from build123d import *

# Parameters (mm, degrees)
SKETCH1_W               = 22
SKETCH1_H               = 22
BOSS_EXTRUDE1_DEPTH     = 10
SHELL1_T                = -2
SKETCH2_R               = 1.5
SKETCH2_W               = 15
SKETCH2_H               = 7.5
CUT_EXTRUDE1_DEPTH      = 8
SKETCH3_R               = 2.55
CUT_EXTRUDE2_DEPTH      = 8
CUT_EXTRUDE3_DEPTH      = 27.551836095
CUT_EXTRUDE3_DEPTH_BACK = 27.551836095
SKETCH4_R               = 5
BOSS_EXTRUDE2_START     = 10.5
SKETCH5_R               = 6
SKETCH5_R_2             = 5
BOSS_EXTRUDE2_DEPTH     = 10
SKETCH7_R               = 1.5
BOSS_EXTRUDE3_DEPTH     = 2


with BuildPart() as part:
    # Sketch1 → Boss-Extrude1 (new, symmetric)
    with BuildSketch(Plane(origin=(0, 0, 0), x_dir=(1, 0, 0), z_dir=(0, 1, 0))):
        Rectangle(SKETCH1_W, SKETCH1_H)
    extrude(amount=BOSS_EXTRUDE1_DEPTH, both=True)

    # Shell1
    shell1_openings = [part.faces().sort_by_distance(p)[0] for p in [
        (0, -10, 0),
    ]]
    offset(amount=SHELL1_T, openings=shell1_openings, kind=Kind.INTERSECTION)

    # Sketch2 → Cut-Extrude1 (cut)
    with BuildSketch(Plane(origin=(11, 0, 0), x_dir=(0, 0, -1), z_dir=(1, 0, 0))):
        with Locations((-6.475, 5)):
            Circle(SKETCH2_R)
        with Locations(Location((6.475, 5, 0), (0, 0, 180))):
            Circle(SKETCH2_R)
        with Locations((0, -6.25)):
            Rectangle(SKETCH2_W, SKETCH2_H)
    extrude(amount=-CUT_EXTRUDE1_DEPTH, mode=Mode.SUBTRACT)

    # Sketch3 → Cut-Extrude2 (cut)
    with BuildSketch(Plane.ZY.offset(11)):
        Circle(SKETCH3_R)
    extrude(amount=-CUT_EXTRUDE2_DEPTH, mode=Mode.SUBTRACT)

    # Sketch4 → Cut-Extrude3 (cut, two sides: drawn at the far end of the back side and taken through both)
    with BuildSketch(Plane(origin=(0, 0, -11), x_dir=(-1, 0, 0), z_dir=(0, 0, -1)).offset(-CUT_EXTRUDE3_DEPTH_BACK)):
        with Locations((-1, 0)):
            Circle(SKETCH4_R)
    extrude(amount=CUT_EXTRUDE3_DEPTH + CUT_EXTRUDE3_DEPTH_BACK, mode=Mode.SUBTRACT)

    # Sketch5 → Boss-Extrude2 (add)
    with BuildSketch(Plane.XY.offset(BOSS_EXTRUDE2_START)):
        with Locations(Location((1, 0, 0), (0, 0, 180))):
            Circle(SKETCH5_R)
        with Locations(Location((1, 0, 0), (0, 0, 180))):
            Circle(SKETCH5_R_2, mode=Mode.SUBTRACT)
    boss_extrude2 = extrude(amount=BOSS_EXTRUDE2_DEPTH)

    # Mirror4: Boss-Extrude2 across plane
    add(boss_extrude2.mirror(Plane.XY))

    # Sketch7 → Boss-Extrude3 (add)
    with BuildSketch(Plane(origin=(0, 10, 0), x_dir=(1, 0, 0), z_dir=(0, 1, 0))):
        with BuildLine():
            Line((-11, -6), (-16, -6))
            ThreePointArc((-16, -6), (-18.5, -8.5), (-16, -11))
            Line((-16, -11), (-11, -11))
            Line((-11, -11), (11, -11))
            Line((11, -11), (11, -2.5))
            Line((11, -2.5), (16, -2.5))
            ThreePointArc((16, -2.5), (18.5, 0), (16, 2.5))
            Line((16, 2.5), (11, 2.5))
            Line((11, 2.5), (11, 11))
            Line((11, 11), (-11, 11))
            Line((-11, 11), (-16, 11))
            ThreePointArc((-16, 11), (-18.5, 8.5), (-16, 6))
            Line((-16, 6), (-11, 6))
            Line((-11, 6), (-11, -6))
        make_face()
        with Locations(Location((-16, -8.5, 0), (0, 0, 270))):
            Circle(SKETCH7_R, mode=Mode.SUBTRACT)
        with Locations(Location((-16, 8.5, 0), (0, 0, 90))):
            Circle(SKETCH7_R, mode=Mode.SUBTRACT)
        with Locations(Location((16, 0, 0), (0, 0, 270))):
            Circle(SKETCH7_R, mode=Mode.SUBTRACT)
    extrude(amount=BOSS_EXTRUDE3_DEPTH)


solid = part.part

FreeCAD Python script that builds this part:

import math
import FreeCAD as App
import Part
import Sketcher
Q = App.Units.Quantity


def faces_at(feature, points):
    """Names of the faces that lie closest to the given points."""
    faces = feature.Shape.Faces
    near = lambda p: min(range(len(faces)), key=lambda i: faces[i].distToShape(Part.Vertex(*p))[0])
    return sorted({f"Face{near(p) + 1}" for p in points})


def add_polygon(sketch, points):
    """Adds a closed chain of lines whose ends are joined by coincident constraints."""
    first, n = sketch.GeometryCount, len(points)
    for a, b in zip(points, points[1:] + points[:1]):
        sketch.addGeometry(Part.LineSegment(App.Vector(*a, 0), App.Vector(*b, 0)), False)
    for i in range(n):
        sketch.addConstraint(Sketcher.Constraint("Coincident", first + i, 2, first + (i + 1) % n, 1))

doc = App.newDocument("Part")
body = doc.addObject("PartDesign::Body", "Body")

# Sketch on XZ plane
sketch1 = body.newObject("Sketcher::SketchObject", "Sketch")
sketch1.AttachmentSupport = (doc.getObject("XZ_Plane"), [""])
sketch1.MapMode = "FlatFace"
add_polygon(sketch1, [(-11, -11), (-11, 11), (11, 11), (11, -11)])  # lines 0-3
sketch1.addConstraint(Sketcher.Constraint("Vertical", 0))
sketch1.addConstraint(Sketcher.Constraint("Horizontal", 1))
sketch1.addConstraint(Sketcher.Constraint("Vertical", 2))
sketch1.addConstraint(Sketcher.Constraint("Horizontal", 3))
sketch1.addConstraint(Sketcher.Constraint("Symmetric", 0, 2, 2, 2, -1, 1))
sketch1.addConstraint(Sketcher.Constraint("Equal", 3, 0))
sketch1.addConstraint(Sketcher.Constraint("DistanceX", 1, 1, 1, 2, Q("22 mm")))
pad1 = body.newObject("PartDesign::Pad", "Pad")
pad1.Profile = sketch1
pad1.Length = 20
pad1.Midplane = True
doc.recompute()

thickness = body.newObject("PartDesign::Thickness", "Thickness")
thickness.Base = (pad1, faces_at(pad1, [(0, -10, 0)]))
thickness.Value = 2
thickness.Reversed = True
thickness.Join = "Intersection"

# Sketch on YZ plane
sketch2 = body.newObject("Sketcher::SketchObject", "Sketch001")
sketch2.AttachmentSupport = (doc.getObject("YZ_Plane"), [""])
sketch2.MapMode = "FlatFace"
sketch2.AttachmentOffset = App.Placement(App.Vector(0, 0, 11), App.Rotation())
sketch2.addGeometry(Part.Circle(App.Vector(5, 6.5, 0), App.Vector(0, 0, 1), 1.5), False)  # 0
sketch2.addGeometry(Part.Circle(App.Vector(5, -6.5, 0), App.Vector(0, 0, 1), 1.5), False)  # 1
add_polygon(sketch2, [(-2.5, 7.5), (-10, 7.5), (-10, -7.5), (-2.5, -7.5)])  # lines 2-5
sketch2.addConstraint(Sketcher.Constraint("Horizontal", 2))
sketch2.addConstraint(Sketcher.Constraint("Vertical", 3))
sketch2.addConstraint(Sketcher.Constraint("Horizontal", 4))
sketch2.addConstraint(Sketcher.Constraint("Vertical", 5))
sketch2.addConstraint(Sketcher.Constraint("Equal", 0, 1))
sketch2.addConstraint(Sketcher.Constraint("Symmetric", 0, 3, 1, 3, -1))
sketch2.addConstraint(Sketcher.Constraint("Diameter", 0, Q("3 mm")))
sketch2.addConstraint(Sketcher.Constraint("DistanceY", 3, 2, 3, 1, Q("15 mm")))
sketch2.addConstraint(Sketcher.Constraint("DistanceX", 2, 2, 2, 1, Q("7.5 mm")))
sketch2.addConstraint(Sketcher.Constraint("DistanceX", -1, 1, 0, 3, Q("5 mm")))
sketch2.addConstraint(Sketcher.Constraint("DistanceX", 2, 2, -1, 1, Q("10 mm")))
sketch2.addConstraint(Sketcher.Constraint("DistanceY", -1, 1, 2, 2, Q("7.5 mm")))
sketch2.addConstraint(Sketcher.Constraint("DistanceY", 1, 3, 0, 3, Q("12.95 mm")))
pocket1 = body.newObject("PartDesign::Pocket", "Pocket")
pocket1.Profile = sketch2
pocket1.Length = 8

# Sketch on YZ plane
sketch3 = body.newObject("Sketcher::SketchObject", "Sketch002")
sketch3.AttachmentSupport = (doc.getObject("YZ_Plane"), [""])
sketch3.MapMode = "FlatFace"
sketch3.AttachmentOffset = App.Placement(App.Vector(0, 0, -11), App.Rotation())
sketch3.addGeometry(Part.Circle(App.Vector(0, 0, 0), App.Vector(0, 0, 1), 2.5), False)
sketch3.addConstraint(Sketcher.Constraint("Coincident", 0, 3, -1, 1))
sketch3.addConstraint(Sketcher.Constraint("Diameter", 0, Q("5.1 mm")))
pocket2 = body.newObject("PartDesign::Pocket", "Pocket001")
pocket2.Profile = sketch3
pocket2.Length = 8
pocket2.Reversed = True

# Sketch on XY plane
sketch4 = body.newObject("Sketcher::SketchObject", "Sketch003")
sketch4.AttachmentSupport = (doc.getObject("XY_Plane"), [""])
sketch4.MapMode = "FlatFace"
sketch4.AttachmentOffset = App.Placement(App.Vector(0, 0, -11), App.Rotation())
sketch4.addGeometry(Part.Circle(App.Vector(1, 0, 0), App.Vector(0, 0, 1), 5), False)
sketch4.addConstraint(Sketcher.Constraint("PointOnObject", 0, 3, -1))
sketch4.addConstraint(Sketcher.Constraint("Diameter", 0, Q("10 mm")))
sketch4.addConstraint(Sketcher.Constraint("DistanceX", -1, 1, 0, 3, Q("1 mm")))
pocket3 = body.newObject("PartDesign::Pocket", "Pocket002")
pocket3.Profile = sketch4
pocket3.Type = "ThroughAll"
pocket3.Midplane = True

# Sketch on XY plane
sketch5 = body.newObject("Sketcher::SketchObject", "Sketch004")
sketch5.AttachmentSupport = (doc.getObject("XY_Plane"), [""])
sketch5.MapMode = "FlatFace"
sketch5.AttachmentOffset = App.Placement(App.Vector(0, 0, 10.5), App.Rotation())
sketch5.addGeometry(Part.Circle(App.Vector(1, 0, 0), App.Vector(0, 0, 1), 6), False)
sketch5.addGeometry(Part.Circle(App.Vector(1, 0, 0), App.Vector(0, 0, 1), 5), False)
sketch5.addConstraint(Sketcher.Constraint("Coincident", 1, 3, 0, 3))
sketch5.addConstraint(Sketcher.Constraint("PointOnObject", 0, 3, -1))
sketch5.addConstraint(Sketcher.Constraint("Diameter", 0, Q("12 mm")))
sketch5.addConstraint(Sketcher.Constraint("Diameter", 1, Q("10 mm")))
sketch5.addConstraint(Sketcher.Constraint("DistanceX", -1, 1, 0, 3, Q("1 mm")))
pad2 = body.newObject("PartDesign::Pad", "Pad001")
pad2.Profile = sketch5
pad2.Length = 10
doc.recompute()

mirrored = body.newObject("PartDesign::Mirrored", "Mirrored")
mirrored.Originals = [pad2]
mirrored.MirrorPlane = (doc.getObject("XY_Plane"), [""])
body.Tip = mirrored

# Sketch on XZ plane
sketch6 = body.newObject("Sketcher::SketchObject", "Sketch005")
sketch6.AttachmentSupport = (doc.getObject("XZ_Plane"), [""])
sketch6.MapMode = "FlatFace"
sketch6.AttachmentOffset = App.Placement(App.Vector(0, 0, -10), App.Rotation())
sketch6.addGeometry(Part.LineSegment(App.Vector(-11, 6, 0), App.Vector(-16, 6, 0)), False)
sketch6.addGeometry(Part.ArcOfCircle(Part.Circle(App.Vector(-16, 8.5, 0), App.Vector(0, 0, 1), 2.5), math.radians(90), math.radians(270)), False)
sketch6.addGeometry(Part.LineSegment(App.Vector(-16, 11, 0), App.Vector(11, 11, 0)), False)
sketch6.addGeometry(Part.LineSegment(App.Vector(11, 11, 0), App.Vector(11, 2.5, 0)), False)
sketch6.addGeometry(Part.LineSegment(App.Vector(11, 2.5, 0), App.Vector(16, 2.5, 0)), False)
sketch6.addGeometry(Part.ArcOfCircle(Part.Circle(App.Vector(16, 0, 0), App.Vector(0, 0, 1), 2.5), math.radians(-90), math.radians(90)), False)
sketch6.addGeometry(Part.LineSegment(App.Vector(16, -2.5, 0), App.Vector(11, -2.5, 0)), False)
sketch6.addGeometry(Part.LineSegment(App.Vector(11, -2.5, 0), App.Vector(11, -11, 0)), False)
sketch6.addGeometry(Part.LineSegment(App.Vector(11, -11, 0), App.Vector(-16, -11, 0)), False)
sketch6.addGeometry(Part.ArcOfCircle(Part.Circle(App.Vector(-16, -8.5, 0), App.Vector(0, 0, 1), 2.5), math.radians(90), math.radians(270)), False)
sketch6.addGeometry(Part.LineSegment(App.Vector(-16, -6, 0), App.Vector(-11, -6, 0)), False)
sketch6.addGeometry(Part.LineSegment(App.Vector(-11, -6, 0), App.Vector(-11, 6, 0)), False)
sketch6.addGeometry(Part.Circle(App.Vector(-16, 8.5, 0), App.Vector(0, 0, 1), 1.5), False)
sketch6.addGeometry(Part.Circle(App.Vector(-16, -8.5, 0), App.Vector(0, 0, 1), 1.5), False)
sketch6.addGeometry(Part.Circle(App.Vector(16, 0, 0), App.Vector(0, 0, 1), 1.5), False)
sketch6.addConstraint(Sketcher.Constraint("Tangent", 0, 2, 1, 2))
sketch6.addConstraint(Sketcher.Constraint("Tangent", 1, 1, 2, 1))
sketch6.addConstraint(Sketcher.Constraint("Coincident", 2, 2, 3, 1))
sketch6.addConstraint(Sketcher.Constraint("Coincident", 3, 2, 4, 1))
sketch6.addConstraint(Sketcher.Constraint("Tangent", 4, 2, 5, 2))
sketch6.addConstraint(Sketcher.Constraint("Tangent", 5, 1, 6, 1))
sketch6.addConstraint(Sketcher.Constraint("Coincident", 6, 2, 7, 1))
sketch6.addConstraint(Sketcher.Constraint("Coincident", 7, 2, 8, 1))
sketch6.addConstraint(Sketcher.Constraint("Tangent", 8, 2, 9, 2))
sketch6.addConstraint(Sketcher.Constraint("Tangent", 9, 1, 10, 1))
sketch6.addConstraint(Sketcher.Constraint("Coincident", 10, 2, 11, 1))
sketch6.addConstraint(Sketcher.Constraint("Coincident", 11, 2, 0, 1))
sketch6.addConstraint(Sketcher.Constraint("Horizontal", 0))
sketch6.addConstraint(Sketcher.Constraint("Horizontal", 2))
sketch6.addConstraint(Sketcher.Constraint("Vertical", 3))
sketch6.addConstraint(Sketcher.Constraint("Horizontal", 4))
sketch6.addConstraint(Sketcher.Constraint("Horizontal", 6))
sketch6.addConstraint(Sketcher.Constraint("Vertical", 7))
sketch6.addConstraint(Sketcher.Constraint("Horizontal", 8))
sketch6.addConstraint(Sketcher.Constraint("Horizontal", 10))
sketch6.addConstraint(Sketcher.Constraint("Vertical", 11))
sketch6.addConstraint(Sketcher.Constraint("Coincident", 12, 3, 1, 3))
sketch6.addConstraint(Sketcher.Constraint("Coincident", 13, 3, 9, 3))
sketch6.addConstraint(Sketcher.Constraint("Coincident", 14, 3, 5, 3))
sketch6.addConstraint(Sketcher.Constraint("Equal", 1, 5))
sketch6.addConstraint(Sketcher.Constraint("Equal", 5, 9))
sketch6.addConstraint(Sketcher.Constraint("Equal", 12, 13))
sketch6.addConstraint(Sketcher.Constraint("Equal", 13, 14))
sketch6.addConstraint(Sketcher.Constraint("Symmetric", 1, 3, 9, 3, -1))
sketch6.addConstraint(Sketcher.Constraint("Symmetric", 3, 2, 6, 2, -1))
sketch6.addConstraint(Sketcher.Constraint("Equal", 0, 4))
sketch6.addConstraint(Sketcher.Constraint("Diameter", 12, Q("3 mm")))
sketch6.addConstraint(Sketcher.Constraint("Radius", 1, Q("2.5 mm")))
sketch6.addConstraint(Sketcher.Constraint("DistanceX", 0, 2, 0, 1, Q("5 mm")))
sketch6.addConstraint(Sketcher.Constraint("DistanceX", 2, 1, 2, 2, Q("27 mm")))
sketch6.addConstraint(Sketcher.Constraint("DistanceY", 11, 1, 11, 2, Q("12 mm")))
sketch6.addConstraint(Sketcher.Constraint("DistanceX", 1, 3, -1, 1, Q("16 mm")))
pad3 = body.newObject("PartDesign::Pad", "Pad002")
pad3.Profile = sketch6
pad3.Length = 2
pad3.Reversed = True

doc.recompute()
